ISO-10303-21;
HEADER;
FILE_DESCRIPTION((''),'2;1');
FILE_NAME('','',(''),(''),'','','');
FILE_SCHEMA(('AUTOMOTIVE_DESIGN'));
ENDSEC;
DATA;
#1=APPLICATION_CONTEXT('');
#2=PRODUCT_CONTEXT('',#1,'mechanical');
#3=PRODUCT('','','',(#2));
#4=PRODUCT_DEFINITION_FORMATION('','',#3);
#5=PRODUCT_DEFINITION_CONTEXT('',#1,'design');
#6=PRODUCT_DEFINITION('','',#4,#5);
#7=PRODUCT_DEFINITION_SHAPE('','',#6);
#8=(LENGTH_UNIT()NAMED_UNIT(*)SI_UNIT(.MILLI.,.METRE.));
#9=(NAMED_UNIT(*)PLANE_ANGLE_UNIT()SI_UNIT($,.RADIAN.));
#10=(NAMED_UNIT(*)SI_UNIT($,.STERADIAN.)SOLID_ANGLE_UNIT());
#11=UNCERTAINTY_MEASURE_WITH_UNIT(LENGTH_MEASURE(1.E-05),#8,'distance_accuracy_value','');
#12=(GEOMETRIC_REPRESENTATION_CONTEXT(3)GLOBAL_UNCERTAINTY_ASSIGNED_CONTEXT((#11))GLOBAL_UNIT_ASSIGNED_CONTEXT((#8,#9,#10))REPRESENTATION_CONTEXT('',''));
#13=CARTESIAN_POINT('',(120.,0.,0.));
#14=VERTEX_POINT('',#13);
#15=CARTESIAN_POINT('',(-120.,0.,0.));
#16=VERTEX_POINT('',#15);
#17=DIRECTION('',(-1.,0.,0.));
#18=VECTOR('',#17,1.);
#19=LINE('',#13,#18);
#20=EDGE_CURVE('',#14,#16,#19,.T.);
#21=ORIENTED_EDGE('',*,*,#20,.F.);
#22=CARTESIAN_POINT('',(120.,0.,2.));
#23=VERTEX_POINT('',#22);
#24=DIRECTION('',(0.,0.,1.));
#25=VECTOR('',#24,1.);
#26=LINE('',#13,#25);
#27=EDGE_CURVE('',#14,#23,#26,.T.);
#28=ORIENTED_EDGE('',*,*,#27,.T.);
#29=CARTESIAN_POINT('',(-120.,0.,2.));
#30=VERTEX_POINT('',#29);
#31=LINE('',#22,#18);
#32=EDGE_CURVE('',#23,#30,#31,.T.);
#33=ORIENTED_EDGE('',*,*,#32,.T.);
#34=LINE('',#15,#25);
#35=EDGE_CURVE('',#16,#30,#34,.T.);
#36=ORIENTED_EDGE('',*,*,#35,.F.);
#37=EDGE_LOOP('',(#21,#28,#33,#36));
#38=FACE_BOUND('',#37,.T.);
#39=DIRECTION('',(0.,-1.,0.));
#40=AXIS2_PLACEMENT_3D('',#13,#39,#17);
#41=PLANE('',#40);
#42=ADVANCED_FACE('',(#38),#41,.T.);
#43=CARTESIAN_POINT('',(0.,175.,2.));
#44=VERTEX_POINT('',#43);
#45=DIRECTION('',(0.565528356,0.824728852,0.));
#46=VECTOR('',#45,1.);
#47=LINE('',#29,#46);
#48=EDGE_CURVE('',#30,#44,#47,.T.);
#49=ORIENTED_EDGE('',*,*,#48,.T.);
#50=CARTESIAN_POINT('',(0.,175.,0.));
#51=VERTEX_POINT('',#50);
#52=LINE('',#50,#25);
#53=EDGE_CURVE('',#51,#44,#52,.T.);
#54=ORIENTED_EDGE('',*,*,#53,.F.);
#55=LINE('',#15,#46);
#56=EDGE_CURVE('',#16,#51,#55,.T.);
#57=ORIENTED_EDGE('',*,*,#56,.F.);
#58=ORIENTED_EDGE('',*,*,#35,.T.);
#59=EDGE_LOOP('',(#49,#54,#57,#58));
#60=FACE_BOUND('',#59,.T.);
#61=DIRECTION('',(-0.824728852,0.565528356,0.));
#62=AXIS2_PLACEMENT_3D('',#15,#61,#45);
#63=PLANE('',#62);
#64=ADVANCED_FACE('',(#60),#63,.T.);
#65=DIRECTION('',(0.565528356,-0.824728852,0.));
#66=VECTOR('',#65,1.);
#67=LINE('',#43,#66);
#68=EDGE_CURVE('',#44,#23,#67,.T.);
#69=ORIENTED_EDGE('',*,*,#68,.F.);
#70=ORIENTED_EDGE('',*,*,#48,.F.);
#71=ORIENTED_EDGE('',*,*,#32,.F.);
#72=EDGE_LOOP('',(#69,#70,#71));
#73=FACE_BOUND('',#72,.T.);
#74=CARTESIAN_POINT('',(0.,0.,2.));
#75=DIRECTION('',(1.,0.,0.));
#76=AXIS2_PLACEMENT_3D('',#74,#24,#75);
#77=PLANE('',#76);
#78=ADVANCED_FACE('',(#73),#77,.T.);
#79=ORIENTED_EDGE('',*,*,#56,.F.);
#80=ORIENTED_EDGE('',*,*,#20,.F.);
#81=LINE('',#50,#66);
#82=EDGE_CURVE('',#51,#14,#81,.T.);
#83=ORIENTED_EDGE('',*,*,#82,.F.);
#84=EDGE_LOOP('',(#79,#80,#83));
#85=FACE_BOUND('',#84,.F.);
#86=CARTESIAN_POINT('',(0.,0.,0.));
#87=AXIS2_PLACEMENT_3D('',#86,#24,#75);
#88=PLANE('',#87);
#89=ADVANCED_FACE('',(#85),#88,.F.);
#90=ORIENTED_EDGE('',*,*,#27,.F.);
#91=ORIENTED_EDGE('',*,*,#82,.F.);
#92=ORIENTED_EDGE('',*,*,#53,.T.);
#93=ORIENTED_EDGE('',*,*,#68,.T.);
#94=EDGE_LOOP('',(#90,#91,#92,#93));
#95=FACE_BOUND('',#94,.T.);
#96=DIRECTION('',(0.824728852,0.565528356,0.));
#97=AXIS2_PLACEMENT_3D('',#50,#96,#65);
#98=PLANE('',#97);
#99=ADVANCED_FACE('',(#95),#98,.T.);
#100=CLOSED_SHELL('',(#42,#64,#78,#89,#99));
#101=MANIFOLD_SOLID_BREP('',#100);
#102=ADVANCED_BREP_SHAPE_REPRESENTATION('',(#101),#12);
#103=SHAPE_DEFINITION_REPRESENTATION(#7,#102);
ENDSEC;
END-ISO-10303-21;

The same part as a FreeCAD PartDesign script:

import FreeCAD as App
import Part
import Sketcher

V = App.Vector

doc = App.newDocument("Part")
body = doc.addObject("PartDesign::Body", "Body")

sketch1 = body.newObject("Sketcher::SketchObject", "Sketch")
sketch1.AttachmentSupport = (doc.getObject("XY_Plane"), [""])
sketch1.MapMode = "FlatFace"
sketch1.addGeometry([
    Part.LineSegment(V(-120, 0, 0), V(120, 0, 0)),
    Part.LineSegment(V(120, 0, 0), V(0, 175, 0)),
    Part.LineSegment(V(0, 175, 0), V(-120, 0, 0)),
], False)
sketch1.addConstraint([
    Sketcher.Constraint("Coincident", 0, 2, 1, 1),
    Sketcher.Constraint("Coincident", 1, 2, 2, 1),
    Sketcher.Constraint("Coincident", 2, 2, 0, 1),
    Sketcher.Constraint("Horizontal", 0),
    Sketcher.Constraint("Symmetric", 0, 2, 2, 2, -1, 1),
    Sketcher.Constraint("PointOnObject", 1, 2, -2),
    Sketcher.Constraint("DistanceX", 0, 1, 0, 2, 240.0),
    Sketcher.Constraint("DistanceY", -1, 1, 1, 2, 175.0),
])
pad1 = body.newObject("PartDesign::Pad", "Pad")
pad1.Profile = sketch1
pad1.Length = 2

doc.recompute()
